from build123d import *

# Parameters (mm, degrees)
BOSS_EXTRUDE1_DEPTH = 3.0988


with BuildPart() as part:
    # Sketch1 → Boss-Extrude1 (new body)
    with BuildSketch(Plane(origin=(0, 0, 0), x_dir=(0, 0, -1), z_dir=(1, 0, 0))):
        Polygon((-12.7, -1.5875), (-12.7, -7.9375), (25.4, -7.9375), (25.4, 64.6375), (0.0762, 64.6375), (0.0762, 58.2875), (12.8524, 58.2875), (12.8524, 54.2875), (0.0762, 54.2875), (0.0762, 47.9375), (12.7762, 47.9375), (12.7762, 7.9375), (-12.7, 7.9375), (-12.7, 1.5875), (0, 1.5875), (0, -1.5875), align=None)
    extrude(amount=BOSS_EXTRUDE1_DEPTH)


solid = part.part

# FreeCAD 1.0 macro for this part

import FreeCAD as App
import Part
import Sketcher
Q = App.Units.Quantity


def add_polygon(sketch, points):
    """Adds a closed chain of lines whose ends are joined by coincident constraints."""
    first, n = sketch.GeometryCount, len(points)
    for a, b in zip(points, points[1:] + points[:1]):
        sketch.addGeometry(Part.LineSegment(App.Vector(*a, 0), App.Vector(*b, 0)), False)
    for i in range(n):
        sketch.addConstraint(Sketcher.Constraint("Coincident", first + i, 2, first + (i + 1) % n, 1))

doc = App.newDocument("Part")
body = doc.addObject("PartDesign::Body", "Body")

# Sketch on YZ plane
sketch1 = body.newObject("Sketcher::SketchObject", "Sketch")
sketch1.AttachmentSupport = (doc.getObject("YZ_Plane"), [""])
sketch1.MapMode = "FlatFace"
add_polygon(sketch1, [(-1.6, 12.7), (-7.9, 12.7), (-7.9, -25.4), (64.6, -25.4), (64.6, -0.1), (58.3, -0.1), (58.3, -12.9), (54.3, -12.9), (54.3, -0.1), (47.9, -0.1), (47.9, -12.8), (7.9, -12.8), (7.9, 12.7), (1.6, 12.7), (1.6, 0), (-1.6, 0)])  # lines 0-15
sketch1.addConstraint([
    Sketcher.Constraint("Horizontal", 0),
    Sketcher.Constraint("Vertical", 1),
    Sketcher.Constraint("Horizontal", 2),
    Sketcher.Constraint("Vertical", 3),
    Sketcher.Constraint("Horizontal", 4),
    Sketcher.Constraint("Vertical", 5),
    Sketcher.Constraint("Horizontal", 6),
    Sketcher.Constraint("Vertical", 7),
    Sketcher.Constraint("Horizontal", 8),
    Sketcher.Constraint("Vertical", 9),
    Sketcher.Constraint("Horizontal", 10),
    Sketcher.Constraint("Vertical", 11),
    Sketcher.Constraint("Horizontal", 12),
    Sketcher.Constraint("Vertical", 13),
    Sketcher.Constraint("Horizontal", 14),
    Sketcher.Constraint("Vertical", 15),
    Sketcher.Constraint("Symmetric", 13, 2, 14, 2, -1, 1),
    Sketcher.Constraint("Symmetric", 0, 2, 11, 2, -2),
    Sketcher.Constraint("Horizontal", 4, 2, 7, 2),
    Sketcher.Constraint("Equal", 0, 4),
    Sketcher.Constraint("Equal", 4, 8),
    Sketcher.Constraint("Equal", 9, 13),
    Sketcher.Constraint("DistanceY", 1, 2, 1, 1, Q("1.5 in")),
    Sketcher.Constraint("DistanceY", 9, 2, 9, 1, Q("0.5 in")),
    Sketcher.Constraint("DistanceX", 0, 2, 0, 1, Q("0.25 in")),
    Sketcher.Constraint("DistanceX", 14, 2, 14, 1, Q("0.125 in")),
    Sketcher.Constraint("DistanceY", 3, 1, 3, 2, Q("0.997 in")),
    Sketcher.Constraint("DistanceY", 5, 2, 5, 1, Q("0.503 in")),
    Sketcher.Constraint("DistanceX", 2, 1, 2, 2, Q("72.575 mm")),
    Sketcher.Constraint("DistanceX", 6, 2, 6, 1, Q("4 mm")),
])
pad1 = body.newObject("PartDesign::Pad", "Pad")
pad1.Profile = sketch1
pad1.Length = Q("0.122 in")

doc.recompute()
